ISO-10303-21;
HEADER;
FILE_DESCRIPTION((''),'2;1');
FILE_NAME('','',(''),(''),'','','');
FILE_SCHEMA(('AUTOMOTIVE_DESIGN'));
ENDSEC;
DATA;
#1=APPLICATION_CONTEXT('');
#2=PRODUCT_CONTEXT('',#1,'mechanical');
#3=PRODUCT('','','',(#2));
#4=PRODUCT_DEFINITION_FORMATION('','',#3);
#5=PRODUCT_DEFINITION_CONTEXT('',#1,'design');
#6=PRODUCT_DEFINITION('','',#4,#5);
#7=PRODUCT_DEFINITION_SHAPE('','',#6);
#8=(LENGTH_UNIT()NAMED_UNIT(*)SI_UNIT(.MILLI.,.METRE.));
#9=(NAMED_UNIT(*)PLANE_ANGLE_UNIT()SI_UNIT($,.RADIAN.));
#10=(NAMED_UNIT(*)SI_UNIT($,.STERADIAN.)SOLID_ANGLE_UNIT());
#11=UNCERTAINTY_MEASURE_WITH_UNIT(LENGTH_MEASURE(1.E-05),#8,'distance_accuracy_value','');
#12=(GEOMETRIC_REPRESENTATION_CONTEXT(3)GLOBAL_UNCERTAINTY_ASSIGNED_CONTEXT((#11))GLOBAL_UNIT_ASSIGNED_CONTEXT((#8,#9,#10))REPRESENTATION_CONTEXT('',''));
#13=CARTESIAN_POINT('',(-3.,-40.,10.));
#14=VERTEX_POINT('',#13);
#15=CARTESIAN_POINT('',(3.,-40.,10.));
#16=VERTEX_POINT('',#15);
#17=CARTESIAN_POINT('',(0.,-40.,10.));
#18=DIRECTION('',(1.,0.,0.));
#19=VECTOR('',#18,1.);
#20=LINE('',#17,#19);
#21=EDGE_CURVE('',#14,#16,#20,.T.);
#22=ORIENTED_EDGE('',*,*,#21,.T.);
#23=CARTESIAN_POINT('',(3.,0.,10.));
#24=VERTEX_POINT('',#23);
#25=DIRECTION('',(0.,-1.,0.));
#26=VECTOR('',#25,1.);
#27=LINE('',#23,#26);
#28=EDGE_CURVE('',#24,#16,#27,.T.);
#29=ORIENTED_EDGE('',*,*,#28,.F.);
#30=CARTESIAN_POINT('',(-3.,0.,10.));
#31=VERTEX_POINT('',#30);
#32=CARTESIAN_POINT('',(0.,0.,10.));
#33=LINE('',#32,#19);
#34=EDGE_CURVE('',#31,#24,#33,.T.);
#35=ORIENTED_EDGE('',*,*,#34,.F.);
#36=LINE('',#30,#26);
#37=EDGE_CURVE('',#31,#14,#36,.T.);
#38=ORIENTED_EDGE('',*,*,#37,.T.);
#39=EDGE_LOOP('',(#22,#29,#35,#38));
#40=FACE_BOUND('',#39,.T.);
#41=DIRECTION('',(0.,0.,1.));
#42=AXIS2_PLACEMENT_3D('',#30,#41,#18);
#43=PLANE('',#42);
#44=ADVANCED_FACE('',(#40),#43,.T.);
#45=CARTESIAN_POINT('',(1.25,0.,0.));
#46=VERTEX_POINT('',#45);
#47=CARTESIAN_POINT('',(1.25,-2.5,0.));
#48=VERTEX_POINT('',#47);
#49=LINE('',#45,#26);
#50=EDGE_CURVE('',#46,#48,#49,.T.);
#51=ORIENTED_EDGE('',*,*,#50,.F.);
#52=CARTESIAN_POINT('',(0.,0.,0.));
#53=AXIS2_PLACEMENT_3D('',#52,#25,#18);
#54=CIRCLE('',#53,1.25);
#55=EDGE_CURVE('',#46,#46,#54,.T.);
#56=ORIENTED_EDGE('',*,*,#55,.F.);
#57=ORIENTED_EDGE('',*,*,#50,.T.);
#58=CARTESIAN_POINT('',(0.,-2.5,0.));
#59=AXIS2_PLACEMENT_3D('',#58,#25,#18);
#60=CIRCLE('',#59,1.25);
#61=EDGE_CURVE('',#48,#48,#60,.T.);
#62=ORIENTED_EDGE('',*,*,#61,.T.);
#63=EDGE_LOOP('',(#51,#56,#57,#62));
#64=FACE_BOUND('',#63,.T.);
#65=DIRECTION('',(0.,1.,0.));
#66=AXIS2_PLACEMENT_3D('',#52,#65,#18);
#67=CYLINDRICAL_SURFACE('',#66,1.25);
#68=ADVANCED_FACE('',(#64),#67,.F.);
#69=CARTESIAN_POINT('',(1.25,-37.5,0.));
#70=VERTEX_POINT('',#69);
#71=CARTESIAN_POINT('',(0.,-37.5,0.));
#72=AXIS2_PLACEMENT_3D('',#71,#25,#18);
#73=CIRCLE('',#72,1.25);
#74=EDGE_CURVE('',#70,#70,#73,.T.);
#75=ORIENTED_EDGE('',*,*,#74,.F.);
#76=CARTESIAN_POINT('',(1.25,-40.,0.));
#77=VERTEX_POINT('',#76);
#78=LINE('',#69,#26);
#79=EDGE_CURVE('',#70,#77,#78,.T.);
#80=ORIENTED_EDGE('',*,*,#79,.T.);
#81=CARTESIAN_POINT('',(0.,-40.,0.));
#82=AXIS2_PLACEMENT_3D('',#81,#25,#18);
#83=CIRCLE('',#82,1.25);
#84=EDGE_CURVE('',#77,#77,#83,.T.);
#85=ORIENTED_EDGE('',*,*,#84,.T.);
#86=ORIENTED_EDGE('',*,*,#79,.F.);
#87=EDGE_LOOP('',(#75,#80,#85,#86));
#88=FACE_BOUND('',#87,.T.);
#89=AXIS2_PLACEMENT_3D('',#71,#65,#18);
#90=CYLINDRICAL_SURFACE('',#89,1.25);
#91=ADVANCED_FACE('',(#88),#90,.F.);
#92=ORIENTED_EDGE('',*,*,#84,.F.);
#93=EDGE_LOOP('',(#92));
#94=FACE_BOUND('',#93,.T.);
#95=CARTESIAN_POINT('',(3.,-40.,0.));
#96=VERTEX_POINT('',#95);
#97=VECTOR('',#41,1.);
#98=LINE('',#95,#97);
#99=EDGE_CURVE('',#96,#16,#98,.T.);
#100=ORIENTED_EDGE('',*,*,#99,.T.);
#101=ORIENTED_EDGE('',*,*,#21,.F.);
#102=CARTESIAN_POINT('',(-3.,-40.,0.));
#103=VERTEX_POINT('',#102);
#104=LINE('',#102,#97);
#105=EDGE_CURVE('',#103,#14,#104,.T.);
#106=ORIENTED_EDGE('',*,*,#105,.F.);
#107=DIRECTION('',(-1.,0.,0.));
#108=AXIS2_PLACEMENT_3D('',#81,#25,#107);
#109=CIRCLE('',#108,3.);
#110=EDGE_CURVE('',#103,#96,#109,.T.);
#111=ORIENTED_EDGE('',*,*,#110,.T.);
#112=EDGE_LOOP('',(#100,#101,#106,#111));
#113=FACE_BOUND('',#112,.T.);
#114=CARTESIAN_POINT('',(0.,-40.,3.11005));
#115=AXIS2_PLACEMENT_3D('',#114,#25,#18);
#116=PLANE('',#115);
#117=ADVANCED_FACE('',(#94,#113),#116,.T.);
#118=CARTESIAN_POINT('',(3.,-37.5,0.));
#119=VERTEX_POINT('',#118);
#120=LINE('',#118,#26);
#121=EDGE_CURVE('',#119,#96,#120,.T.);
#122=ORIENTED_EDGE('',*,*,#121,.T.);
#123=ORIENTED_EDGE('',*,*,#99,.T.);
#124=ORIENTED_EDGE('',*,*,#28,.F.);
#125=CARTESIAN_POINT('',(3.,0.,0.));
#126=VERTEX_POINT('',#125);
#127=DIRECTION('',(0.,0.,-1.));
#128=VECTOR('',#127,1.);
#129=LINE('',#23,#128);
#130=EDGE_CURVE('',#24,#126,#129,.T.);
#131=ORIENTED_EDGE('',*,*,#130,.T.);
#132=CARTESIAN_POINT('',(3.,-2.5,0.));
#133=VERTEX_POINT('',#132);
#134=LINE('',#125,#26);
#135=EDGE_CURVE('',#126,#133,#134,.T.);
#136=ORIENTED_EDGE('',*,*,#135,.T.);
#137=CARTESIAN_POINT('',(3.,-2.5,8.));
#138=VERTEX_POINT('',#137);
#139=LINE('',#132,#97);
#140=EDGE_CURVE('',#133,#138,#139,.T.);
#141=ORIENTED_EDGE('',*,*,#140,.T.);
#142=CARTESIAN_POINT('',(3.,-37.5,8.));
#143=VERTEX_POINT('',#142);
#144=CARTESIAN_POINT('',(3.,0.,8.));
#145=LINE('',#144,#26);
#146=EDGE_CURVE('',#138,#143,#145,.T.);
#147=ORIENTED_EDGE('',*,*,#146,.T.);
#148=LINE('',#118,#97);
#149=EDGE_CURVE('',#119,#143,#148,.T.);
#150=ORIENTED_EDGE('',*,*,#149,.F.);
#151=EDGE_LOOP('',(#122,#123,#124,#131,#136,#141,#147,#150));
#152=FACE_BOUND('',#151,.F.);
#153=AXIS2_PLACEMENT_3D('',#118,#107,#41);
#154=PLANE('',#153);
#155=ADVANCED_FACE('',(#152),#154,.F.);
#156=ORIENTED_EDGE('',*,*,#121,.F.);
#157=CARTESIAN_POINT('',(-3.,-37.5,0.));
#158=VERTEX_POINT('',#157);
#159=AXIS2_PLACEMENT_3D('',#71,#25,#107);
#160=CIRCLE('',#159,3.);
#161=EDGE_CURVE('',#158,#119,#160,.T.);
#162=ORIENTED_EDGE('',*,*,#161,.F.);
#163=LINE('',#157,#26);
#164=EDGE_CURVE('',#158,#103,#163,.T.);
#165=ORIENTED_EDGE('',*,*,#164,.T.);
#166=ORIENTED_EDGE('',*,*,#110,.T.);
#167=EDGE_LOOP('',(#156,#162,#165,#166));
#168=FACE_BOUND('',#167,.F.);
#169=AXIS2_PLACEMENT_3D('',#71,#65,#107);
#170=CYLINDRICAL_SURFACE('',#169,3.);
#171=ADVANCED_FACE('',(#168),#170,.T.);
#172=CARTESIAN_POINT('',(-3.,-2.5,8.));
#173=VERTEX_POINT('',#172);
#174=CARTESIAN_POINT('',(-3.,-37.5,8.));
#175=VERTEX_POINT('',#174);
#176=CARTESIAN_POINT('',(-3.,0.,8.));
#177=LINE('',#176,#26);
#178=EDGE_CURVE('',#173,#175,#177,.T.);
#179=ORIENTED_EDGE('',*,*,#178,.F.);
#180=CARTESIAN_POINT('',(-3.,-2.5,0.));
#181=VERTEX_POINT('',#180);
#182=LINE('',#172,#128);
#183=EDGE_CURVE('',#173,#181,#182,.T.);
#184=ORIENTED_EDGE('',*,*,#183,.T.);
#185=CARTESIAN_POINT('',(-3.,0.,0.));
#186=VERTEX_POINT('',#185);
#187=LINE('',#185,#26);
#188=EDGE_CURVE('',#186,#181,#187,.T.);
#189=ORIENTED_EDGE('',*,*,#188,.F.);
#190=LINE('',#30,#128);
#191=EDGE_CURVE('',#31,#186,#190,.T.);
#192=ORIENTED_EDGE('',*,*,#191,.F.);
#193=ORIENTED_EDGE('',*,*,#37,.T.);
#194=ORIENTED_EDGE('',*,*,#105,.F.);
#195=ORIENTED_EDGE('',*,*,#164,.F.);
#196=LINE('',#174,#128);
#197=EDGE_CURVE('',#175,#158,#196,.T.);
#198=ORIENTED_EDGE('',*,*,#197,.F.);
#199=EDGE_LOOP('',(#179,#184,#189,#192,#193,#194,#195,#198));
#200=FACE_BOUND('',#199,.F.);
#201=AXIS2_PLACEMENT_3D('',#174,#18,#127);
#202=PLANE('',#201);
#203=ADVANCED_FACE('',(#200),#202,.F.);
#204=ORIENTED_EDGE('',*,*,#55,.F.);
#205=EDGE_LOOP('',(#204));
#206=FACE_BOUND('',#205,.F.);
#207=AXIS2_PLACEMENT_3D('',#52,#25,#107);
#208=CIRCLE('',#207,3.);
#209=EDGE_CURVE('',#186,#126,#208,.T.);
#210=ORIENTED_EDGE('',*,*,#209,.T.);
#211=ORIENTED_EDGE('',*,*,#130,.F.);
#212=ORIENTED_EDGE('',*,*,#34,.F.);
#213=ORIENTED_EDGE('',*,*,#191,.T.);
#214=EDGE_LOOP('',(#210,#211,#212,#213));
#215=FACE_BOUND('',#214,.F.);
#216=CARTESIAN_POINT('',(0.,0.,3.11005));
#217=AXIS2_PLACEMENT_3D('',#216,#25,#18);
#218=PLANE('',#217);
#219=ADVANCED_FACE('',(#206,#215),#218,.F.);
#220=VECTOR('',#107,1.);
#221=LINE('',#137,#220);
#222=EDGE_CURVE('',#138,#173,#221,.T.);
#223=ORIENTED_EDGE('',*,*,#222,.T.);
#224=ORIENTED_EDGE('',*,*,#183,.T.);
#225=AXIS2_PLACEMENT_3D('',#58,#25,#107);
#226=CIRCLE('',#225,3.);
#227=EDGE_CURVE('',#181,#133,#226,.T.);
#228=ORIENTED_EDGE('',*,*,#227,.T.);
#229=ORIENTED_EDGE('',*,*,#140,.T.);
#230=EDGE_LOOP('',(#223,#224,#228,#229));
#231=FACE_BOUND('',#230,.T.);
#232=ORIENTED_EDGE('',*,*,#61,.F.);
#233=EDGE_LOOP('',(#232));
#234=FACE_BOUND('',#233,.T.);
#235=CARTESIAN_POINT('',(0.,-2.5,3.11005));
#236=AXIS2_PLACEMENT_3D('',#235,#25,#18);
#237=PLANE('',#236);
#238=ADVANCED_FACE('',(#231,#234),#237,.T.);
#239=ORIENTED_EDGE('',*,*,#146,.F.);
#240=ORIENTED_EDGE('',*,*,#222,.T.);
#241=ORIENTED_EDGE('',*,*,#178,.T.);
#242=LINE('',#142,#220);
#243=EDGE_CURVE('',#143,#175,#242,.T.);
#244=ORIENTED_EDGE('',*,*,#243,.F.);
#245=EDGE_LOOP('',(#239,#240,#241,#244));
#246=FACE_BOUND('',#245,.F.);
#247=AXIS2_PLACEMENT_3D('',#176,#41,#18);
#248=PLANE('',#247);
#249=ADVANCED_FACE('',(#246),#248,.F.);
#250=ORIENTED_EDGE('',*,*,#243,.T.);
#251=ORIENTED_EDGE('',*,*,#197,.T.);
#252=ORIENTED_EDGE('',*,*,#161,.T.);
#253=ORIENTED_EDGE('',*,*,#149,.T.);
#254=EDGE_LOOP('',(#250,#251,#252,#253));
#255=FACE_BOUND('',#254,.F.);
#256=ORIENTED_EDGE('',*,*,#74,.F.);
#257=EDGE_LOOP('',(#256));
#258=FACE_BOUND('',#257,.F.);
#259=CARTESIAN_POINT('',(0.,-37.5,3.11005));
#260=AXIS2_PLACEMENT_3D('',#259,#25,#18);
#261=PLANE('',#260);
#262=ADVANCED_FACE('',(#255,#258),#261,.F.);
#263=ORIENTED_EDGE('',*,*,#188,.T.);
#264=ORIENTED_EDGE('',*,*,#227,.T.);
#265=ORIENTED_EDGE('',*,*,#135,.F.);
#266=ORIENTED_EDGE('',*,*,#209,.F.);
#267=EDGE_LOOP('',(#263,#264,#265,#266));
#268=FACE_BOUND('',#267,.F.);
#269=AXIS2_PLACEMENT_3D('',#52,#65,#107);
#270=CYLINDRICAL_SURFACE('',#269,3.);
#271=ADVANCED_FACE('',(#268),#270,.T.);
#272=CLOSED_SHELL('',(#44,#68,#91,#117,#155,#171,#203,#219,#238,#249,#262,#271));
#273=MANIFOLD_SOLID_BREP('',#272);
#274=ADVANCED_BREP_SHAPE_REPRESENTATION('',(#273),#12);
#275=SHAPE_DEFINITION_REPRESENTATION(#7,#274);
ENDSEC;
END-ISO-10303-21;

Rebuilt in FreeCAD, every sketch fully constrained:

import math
import FreeCAD as App
import Part
import Sketcher
from FreeCAD import Vector


def add_polygon(sketch, points):
    """Adds a closed chain of lines whose ends are joined by coincident constraints."""
    first, n = sketch.GeometryCount, len(points)
    for a, b in zip(points, points[1:] + points[:1]):
        sketch.addGeometry(Part.LineSegment(App.Vector(*a, 0), App.Vector(*b, 0)), False)
    for i in range(n):
        sketch.addConstraint(Sketcher.Constraint("Coincident", first + i, 2, first + (i + 1) % n, 1))

doc = App.newDocument("Part")
params = doc.addObject("Spreadsheet::Sheet", "Params")
for row, (alias, value) in enumerate([
    ("sketch1_width", "6 mm"),
    ("sketch1_height", "2 mm"),
    ("pad1_length", "40 mm"),
    ("sketch2_radius", "3 mm"),
    ("sketch2_diameter", "2.5 mm"),
    ("sketch2_height", "8 mm"),
    ("pad2_length", "2.5 mm"),
    ("sketch3_radius", "3 mm"),
    ("sketch3_diameter", "2.5 mm"),
    ("sketch3_height", "8 mm"),
    ("pad3_length", "2.5 mm"),
], start=1):
    params.set(f"A{row}", alias)
    params.set(f"B{row}", "=" + value)
    params.setAlias(f"B{row}", alias)

body = doc.addObject("PartDesign::Body", "Body")

sketch1 = body.newObject("Sketcher::SketchObject", "Sketch")
sketch1.AttachmentSupport = (doc.getObject("XZ_Plane"), [""])
sketch1.MapMode = "FlatFace"
add_polygon(sketch1, [(-3, 10), (-3, 8), (3, 8), (3, 10)])
sketch1.addConstraint(Sketcher.Constraint("Vertical", 0))
sketch1.addConstraint(Sketcher.Constraint("Horizontal", 1))
sketch1.addConstraint(Sketcher.Constraint("Vertical", 2))
sketch1.addConstraint(Sketcher.Constraint("Horizontal", 3))
sketch1.addConstraint(Sketcher.Constraint("DistanceX", 1, 1, 1, 2, 6.0))
sketch1.addConstraint(Sketcher.Constraint("DistanceY", 0, 2, 0, 1, 2.0))
sketch1.addConstraint(Sketcher.Constraint("DistanceX", 0, 2, -1, 1, 3.0))
sketch1.addConstraint(Sketcher.Constraint("DistanceY", -1, 1, 0, 2, 8.0))
sketch1.setExpression("Constraints[8]", "Params.sketch1_width")
sketch1.setExpression("Constraints[9]", "Params.sketch1_height")
pad1 = body.newObject("PartDesign::Pad", "Pad")
pad1.Profile = sketch1
pad1.setExpression("Length", "Params.pad1_length")

sketch2 = body.newObject("Sketcher::SketchObject", "Sketch001")
sketch2.AttachmentSupport = (doc.getObject("XZ_Plane"), [""])
sketch2.MapMode = "FlatFace"
sketch2.addGeometry(Part.LineSegment(Vector(-3, 8, 0), Vector(-3, 0, 0)), False)
sketch2.addGeometry(Part.ArcOfCircle(Part.Circle(Vector(0, 0, 0), Vector(0, 0, 1), 3), math.radians(180), math.radians(360)), False)
sketch2.addGeometry(Part.LineSegment(Vector(3, 0, 0), Vector(3, 8, 0)), False)
sketch2.addGeometry(Part.LineSegment(Vector(3, 8, 0), Vector(-3, 8, 0)), False)
sketch2.addGeometry(Part.Circle(Vector(0, 0, 0), Vector(0, 0, 1), 1.25), False)
sketch2.addConstraint(Sketcher.Constraint("Tangent", 0, 2, 1, 1))
sketch2.addConstraint(Sketcher.Constraint("Tangent", 1, 2, 2, 1))
sketch2.addConstraint(Sketcher.Constraint("Coincident", 2, 2, 3, 1))
sketch2.addConstraint(Sketcher.Constraint("Coincident", 3, 2, 0, 1))
sketch2.addConstraint(Sketcher.Constraint("Vertical", 0))
sketch2.addConstraint(Sketcher.Constraint("Vertical", 2))
sketch2.addConstraint(Sketcher.Constraint("Horizontal", 3))
sketch2.addConstraint(Sketcher.Constraint("Coincident", 1, 3, -1, 1))
sketch2.addConstraint(Sketcher.Constraint("Coincident", 4, 3, -1, 1))
sketch2.addConstraint(Sketcher.Constraint("Radius", 1, 3.0))
sketch2.addConstraint(Sketcher.Constraint("Diameter", 4, 2.5))
sketch2.addConstraint(Sketcher.Constraint("DistanceY", 0, 2, 0, 1, 8.0))
sketch2.setExpression("Constraints[9]", "Params.sketch2_radius")
sketch2.setExpression("Constraints[10]", "Params.sketch2_diameter")
sketch2.setExpression("Constraints[11]", "Params.sketch2_height")
pad2 = body.newObject("PartDesign::Pad", "Pad001")
pad2.Profile = sketch2
pad2.setExpression("Length", "Params.pad2_length")

sketch3 = body.newObject("Sketcher::SketchObject", "Sketch002")
sketch3.AttachmentSupport = (doc.getObject("XZ_Plane"), [""])
sketch3.MapMode = "FlatFace"
sketch3.AttachmentOffset = App.Placement(Vector(0, 0, 37.5), App.Rotation())
sketch3.addGeometry(Part.LineSegment(Vector(-3, 8, 0), Vector(-3, 0, 0)), False)
sketch3.addGeometry(Part.ArcOfCircle(Part.Circle(Vector(0, 0, 0), Vector(0, 0, 1), 3), math.radians(180), math.radians(360)), False)
sketch3.addGeometry(Part.LineSegment(Vector(3, 0, 0), Vector(3, 8, 0)), False)
sketch3.addGeometry(Part.LineSegment(Vector(3, 8, 0), Vector(-3, 8, 0)), False)
sketch3.addGeometry(Part.Circle(Vector(0, 0, 0), Vector(0, 0, 1), 1.25), False)
sketch3.addConstraint(Sketcher.Constraint("Tangent", 0, 2, 1, 1))
sketch3.addConstraint(Sketcher.Constraint("Tangent", 1, 2, 2, 1))
sketch3.addConstraint(Sketcher.Constraint("Coincident", 2, 2, 3, 1))
sketch3.addConstraint(Sketcher.Constraint("Coincident", 3, 2, 0, 1))
sketch3.addConstraint(Sketcher.Constraint("Vertical", 0))
sketch3.addConstraint(Sketcher.Constraint("Vertical", 2))
sketch3.addConstraint(Sketcher.Constraint("Horizontal", 3))
sketch3.addConstraint(Sketcher.Constraint("Coincident", 1, 3, -1, 1))
sketch3.addConstraint(Sketcher.Constraint("Coincident", 4, 3, -1, 1))
sketch3.addConstraint(Sketcher.Constraint("Radius", 1, 3.0))
sketch3.addConstraint(Sketcher.Constraint("Diameter", 4, 2.5))
sketch3.addConstraint(Sketcher.Constraint("DistanceY", 0, 2, 0, 1, 8.0))
sketch3.setExpression("Constraints[9]", "Params.sketch3_radius")
sketch3.setExpression("Constraints[10]", "Params.sketch3_diameter")
sketch3.setExpression("Constraints[11]", "Params.sketch3_height")
pad3 = body.newObject("PartDesign::Pad", "Pad002")
pad3.Profile = sketch3
pad3.setExpression("Length", "Params.pad3_length")

doc.recompute()
